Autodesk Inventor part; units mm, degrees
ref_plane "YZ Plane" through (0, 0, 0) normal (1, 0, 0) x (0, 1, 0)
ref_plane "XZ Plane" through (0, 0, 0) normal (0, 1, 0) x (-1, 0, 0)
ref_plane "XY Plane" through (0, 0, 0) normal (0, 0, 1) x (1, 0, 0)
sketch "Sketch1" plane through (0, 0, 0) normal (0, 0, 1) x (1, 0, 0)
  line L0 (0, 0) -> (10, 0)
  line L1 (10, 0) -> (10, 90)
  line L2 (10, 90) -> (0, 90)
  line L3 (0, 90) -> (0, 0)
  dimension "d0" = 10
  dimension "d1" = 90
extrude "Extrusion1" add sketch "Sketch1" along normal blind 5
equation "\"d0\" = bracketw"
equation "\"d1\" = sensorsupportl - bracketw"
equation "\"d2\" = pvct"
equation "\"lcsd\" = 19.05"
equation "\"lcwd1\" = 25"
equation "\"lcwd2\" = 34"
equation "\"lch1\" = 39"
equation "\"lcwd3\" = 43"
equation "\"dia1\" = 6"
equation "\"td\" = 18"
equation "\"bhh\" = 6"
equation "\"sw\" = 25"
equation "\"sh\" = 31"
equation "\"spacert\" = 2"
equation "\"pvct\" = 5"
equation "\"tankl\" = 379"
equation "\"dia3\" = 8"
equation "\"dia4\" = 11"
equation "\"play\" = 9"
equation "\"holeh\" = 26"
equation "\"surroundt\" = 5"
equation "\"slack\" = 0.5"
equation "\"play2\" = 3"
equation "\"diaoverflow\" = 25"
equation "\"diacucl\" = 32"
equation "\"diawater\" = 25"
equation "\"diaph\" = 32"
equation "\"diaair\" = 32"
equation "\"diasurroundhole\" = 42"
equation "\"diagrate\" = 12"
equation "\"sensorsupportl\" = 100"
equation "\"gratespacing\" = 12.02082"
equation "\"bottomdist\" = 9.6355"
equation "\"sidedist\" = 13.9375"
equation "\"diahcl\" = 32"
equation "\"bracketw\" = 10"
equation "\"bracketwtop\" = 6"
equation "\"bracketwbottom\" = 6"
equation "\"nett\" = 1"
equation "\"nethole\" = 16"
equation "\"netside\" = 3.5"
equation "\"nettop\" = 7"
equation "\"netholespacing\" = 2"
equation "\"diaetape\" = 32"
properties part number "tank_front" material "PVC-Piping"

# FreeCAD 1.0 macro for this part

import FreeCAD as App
import Part
import Sketcher
from FreeCAD import Vector
Q = App.Units.Quantity

doc = App.newDocument("Part")
body = doc.addObject("PartDesign::Body", "Body")

# Sketch on XY plane
sketch1 = body.newObject("Sketcher::SketchObject", "Sketch")
sketch1.AttachmentSupport = (doc.getObject("XY_Plane"), [""])
sketch1.MapMode = "FlatFace"
sketch1.addGeometry([
    Part.LineSegment(Vector(0, 90, 0), Vector(0, 0, 0)),
    Part.LineSegment(Vector(0, 0, 0), Vector(10, 0, 0)),
    Part.LineSegment(Vector(10, 0, 0), Vector(10, 90, 0)),
    Part.LineSegment(Vector(10, 90, 0), Vector(0, 90, 0)),
], False)
sketch1.addConstraint([
    Sketcher.Constraint("Coincident", 0, 2, 1, 1),
    Sketcher.Constraint("Coincident", 1, 2, 2, 1),
    Sketcher.Constraint("Coincident", 2, 2, 3, 1),
    Sketcher.Constraint("Coincident", 3, 2, 0, 1),
    Sketcher.Constraint("Vertical", 0),
    Sketcher.Constraint("Horizontal", 1),
    Sketcher.Constraint("Vertical", 2),
    Sketcher.Constraint("Horizontal", 3),
    Sketcher.Constraint("Coincident", 0, 2, -1, 1),
    Sketcher.Constraint("DistanceX", 1, 1, 1, 2, Q("10 mm")),
    Sketcher.Constraint("DistanceY", 0, 2, 0, 1, Q("90 mm")),
])
pad1 = body.newObject("PartDesign::Pad", "Pad")
pad1.Profile = sketch1
pad1.Length = 5

doc.recompute()
